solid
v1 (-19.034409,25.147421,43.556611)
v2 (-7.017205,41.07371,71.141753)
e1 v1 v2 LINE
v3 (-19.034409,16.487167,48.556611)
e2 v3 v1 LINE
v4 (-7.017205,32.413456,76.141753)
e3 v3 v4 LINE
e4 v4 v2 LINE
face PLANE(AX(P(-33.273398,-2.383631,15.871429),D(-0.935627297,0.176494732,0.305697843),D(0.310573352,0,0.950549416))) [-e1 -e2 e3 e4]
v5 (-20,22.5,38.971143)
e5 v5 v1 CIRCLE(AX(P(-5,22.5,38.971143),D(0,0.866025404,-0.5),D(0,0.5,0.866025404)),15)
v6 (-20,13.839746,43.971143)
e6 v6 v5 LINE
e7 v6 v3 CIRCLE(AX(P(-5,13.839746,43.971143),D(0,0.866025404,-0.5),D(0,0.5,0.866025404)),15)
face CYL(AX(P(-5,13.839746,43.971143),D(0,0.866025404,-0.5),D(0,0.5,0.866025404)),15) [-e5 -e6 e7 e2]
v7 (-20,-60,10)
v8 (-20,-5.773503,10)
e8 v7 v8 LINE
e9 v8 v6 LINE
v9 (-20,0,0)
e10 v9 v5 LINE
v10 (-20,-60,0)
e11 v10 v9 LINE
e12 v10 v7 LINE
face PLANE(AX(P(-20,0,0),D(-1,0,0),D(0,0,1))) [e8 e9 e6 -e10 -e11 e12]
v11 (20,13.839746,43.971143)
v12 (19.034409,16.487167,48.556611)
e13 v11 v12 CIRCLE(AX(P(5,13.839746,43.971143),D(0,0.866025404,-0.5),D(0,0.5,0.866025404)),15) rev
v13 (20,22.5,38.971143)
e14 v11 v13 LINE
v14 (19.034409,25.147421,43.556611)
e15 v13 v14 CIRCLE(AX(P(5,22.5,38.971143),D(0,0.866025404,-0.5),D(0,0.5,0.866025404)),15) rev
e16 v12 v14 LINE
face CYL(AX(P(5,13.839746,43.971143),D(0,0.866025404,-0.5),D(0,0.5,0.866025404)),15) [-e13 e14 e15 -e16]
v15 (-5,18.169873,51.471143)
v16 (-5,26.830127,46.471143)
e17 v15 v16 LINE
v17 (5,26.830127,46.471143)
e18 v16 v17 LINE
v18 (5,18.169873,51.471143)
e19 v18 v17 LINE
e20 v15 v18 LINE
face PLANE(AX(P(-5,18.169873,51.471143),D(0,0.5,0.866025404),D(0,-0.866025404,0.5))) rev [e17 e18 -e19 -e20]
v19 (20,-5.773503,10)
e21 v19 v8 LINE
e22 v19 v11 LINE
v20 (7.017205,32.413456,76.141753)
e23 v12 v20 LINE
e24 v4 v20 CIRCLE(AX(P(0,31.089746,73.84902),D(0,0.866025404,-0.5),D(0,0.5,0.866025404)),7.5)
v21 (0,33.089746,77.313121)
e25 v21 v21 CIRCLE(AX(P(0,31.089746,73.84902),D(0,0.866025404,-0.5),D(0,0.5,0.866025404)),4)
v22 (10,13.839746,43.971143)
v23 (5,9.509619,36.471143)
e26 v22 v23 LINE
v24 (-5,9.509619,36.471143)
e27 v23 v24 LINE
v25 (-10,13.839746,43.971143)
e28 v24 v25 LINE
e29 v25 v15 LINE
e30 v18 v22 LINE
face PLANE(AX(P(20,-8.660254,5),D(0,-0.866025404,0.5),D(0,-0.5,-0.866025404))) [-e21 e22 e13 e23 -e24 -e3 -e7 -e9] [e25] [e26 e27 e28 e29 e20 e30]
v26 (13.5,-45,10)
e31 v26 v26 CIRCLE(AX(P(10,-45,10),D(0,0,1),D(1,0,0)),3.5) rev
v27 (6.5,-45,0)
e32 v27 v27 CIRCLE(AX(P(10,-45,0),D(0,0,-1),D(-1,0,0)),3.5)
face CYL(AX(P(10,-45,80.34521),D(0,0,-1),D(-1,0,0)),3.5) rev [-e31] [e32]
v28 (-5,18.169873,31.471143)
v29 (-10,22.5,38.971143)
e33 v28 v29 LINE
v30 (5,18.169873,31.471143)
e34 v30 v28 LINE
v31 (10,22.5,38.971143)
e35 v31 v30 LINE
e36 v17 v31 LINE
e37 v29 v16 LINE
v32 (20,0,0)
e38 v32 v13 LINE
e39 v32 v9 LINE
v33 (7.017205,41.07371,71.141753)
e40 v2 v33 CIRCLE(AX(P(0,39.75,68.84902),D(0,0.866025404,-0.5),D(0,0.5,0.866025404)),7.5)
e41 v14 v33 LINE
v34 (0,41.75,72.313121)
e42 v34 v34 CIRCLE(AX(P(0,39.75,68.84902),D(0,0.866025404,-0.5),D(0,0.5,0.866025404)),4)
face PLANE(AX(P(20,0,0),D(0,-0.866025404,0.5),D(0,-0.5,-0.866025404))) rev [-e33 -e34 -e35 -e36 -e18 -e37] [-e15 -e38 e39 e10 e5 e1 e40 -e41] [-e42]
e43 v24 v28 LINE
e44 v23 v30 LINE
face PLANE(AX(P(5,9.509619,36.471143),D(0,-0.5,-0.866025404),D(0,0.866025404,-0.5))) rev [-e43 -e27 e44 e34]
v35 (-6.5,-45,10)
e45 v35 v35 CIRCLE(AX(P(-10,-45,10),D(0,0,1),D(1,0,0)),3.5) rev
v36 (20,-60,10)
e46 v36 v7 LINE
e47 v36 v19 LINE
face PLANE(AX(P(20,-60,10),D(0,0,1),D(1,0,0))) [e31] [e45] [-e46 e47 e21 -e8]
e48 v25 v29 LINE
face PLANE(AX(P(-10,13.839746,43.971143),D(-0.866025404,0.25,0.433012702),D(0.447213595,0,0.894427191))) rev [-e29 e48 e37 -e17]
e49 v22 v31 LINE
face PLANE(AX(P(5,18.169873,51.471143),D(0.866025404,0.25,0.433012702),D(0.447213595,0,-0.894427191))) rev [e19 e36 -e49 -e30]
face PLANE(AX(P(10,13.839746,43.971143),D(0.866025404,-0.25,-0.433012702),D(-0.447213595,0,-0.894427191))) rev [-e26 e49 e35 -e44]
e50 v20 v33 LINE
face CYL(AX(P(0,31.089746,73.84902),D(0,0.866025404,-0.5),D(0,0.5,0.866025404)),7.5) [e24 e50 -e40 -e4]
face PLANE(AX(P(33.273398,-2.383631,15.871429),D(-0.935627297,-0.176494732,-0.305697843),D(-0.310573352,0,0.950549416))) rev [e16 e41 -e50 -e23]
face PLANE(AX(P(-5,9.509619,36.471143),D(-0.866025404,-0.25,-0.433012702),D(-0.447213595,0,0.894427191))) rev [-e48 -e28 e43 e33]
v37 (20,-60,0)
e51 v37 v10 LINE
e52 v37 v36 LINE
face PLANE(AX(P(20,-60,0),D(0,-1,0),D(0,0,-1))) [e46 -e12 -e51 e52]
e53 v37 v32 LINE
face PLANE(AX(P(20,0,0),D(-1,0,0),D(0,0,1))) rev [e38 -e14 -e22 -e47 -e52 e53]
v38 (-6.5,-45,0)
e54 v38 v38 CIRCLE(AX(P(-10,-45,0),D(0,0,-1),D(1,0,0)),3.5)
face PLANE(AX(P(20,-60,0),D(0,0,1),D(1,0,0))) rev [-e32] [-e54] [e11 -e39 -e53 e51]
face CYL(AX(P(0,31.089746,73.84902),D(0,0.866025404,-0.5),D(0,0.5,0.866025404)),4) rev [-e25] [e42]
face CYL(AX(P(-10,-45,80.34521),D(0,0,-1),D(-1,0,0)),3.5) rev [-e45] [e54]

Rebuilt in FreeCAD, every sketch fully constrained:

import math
import FreeCAD as App
import Part
import Sketcher

V = App.Vector
Q = App.Units.Quantity


def add_polygon(sketch, points):
    """Adds a closed chain of lines whose ends are joined by coincident constraints."""
    first, n = sketch.GeometryCount, len(points)
    for a, b in zip(points, points[1:] + points[:1]):
        sketch.addGeometry(Part.LineSegment(App.Vector(*a, 0), App.Vector(*b, 0)), False)
    for i in range(n):
        sketch.addConstraint(Sketcher.Constraint("Coincident", first + i, 2, first + (i + 1) % n, 1))

doc = App.newDocument("Part")
body = doc.addObject("PartDesign::Body", "Body")

# Sketch on YZ plane
sketch1 = body.newObject("Sketcher::SketchObject", "Sketch")
sketch1.AttachmentSupport = (doc.getObject("YZ_Plane"), [""])
sketch1.MapMode = "FlatFace"
add_polygon(sketch1, [(-60, 0), (0, 0), (44, 75), (35, 80), (-6, 10), (-60, 10)])  # lines 0-5
sketch1.addConstraint([
    Sketcher.Constraint("Horizontal", 0),
    Sketcher.Constraint("Horizontal", 4),
    Sketcher.Constraint("Vertical", 5),
    Sketcher.Constraint("Coincident", 0, 2, -1, 1),
    Sketcher.Constraint("Perpendicular", 1, 2),
    Sketcher.Constraint("Perpendicular", 2, 3),
    Sketcher.Constraint("DistanceX", 0, 1, 0, 2, Q("60 mm")),
    Sketcher.Constraint("DistanceY", 5, 2, 5, 1, Q("10 mm")),
    Sketcher.Constraint("Angle", 1, Q("60 deg")),
    Sketcher.Constraint("Distance", 1, Q("87 mm")),
    Sketcher.Constraint("Distance", 2, Q("10 mm")),
])
pad1 = body.newObject("PartDesign::Pad", "Pad")
pad1.Profile = sketch1
pad1.Length = 40
pad1.Midplane = True

# Sketch on XY plane
sketch2 = body.newObject("Sketcher::SketchObject", "Sketch001")
sketch2.AttachmentSupport = (doc.getObject("XY_Plane"), [""])
sketch2.MapMode = "FlatFace"
sketch2.addGeometry(Part.Circle(V(10, -45, 0), V(0, 0, 1), 3.5), False)
sketch2.addConstraint([
    Sketcher.Constraint("Diameter", 0, Q("7 mm")),
    Sketcher.Constraint("DistanceX", -1, 1, 0, 3, Q("10 mm")),
    Sketcher.Constraint("DistanceY", 0, 3, -1, 1, Q("45 mm")),
])
pocket1 = body.newObject("PartDesign::Pocket", "Pocket")
pocket1.Profile = sketch2
pocket1.Type = "UpToFirst"
pocket1.Reversed = True

# Sketch on XY plane
sketch3 = body.newObject("Sketcher::SketchObject", "Sketch002")
sketch3.AttachmentSupport = (doc.getObject("XY_Plane"), [""])
sketch3.MapMode = "FlatFace"
sketch3.addGeometry(Part.Circle(V(-10, -45, 0), V(0, 0, 1), 3.5), False)
sketch3.addConstraint([
    Sketcher.Constraint("Diameter", 0, Q("7 mm")),
    Sketcher.Constraint("DistanceX", 0, 3, -1, 1, Q("10 mm")),
    Sketcher.Constraint("DistanceY", 0, 3, -1, 1, Q("45 mm")),
])
pocket2 = body.newObject("PartDesign::Pocket", "Pocket001")
pocket2.Profile = sketch3
pocket2.Type = "UpToFirst"
pocket2.Reversed = True

# Sketch on an angled plane
sketch4 = body.newObject("Sketcher::SketchObject", "Sketch003")
sketch4.Placement = App.Placement(V(0, 0, 0), App.Rotation(V(1, 0, 0), V(0, -0.5, -0.866025404), V(0, 0.866025404, -0.5), "ZXY"))
sketch4.addGeometry([
    Part.LineSegment(V(30, -45, 0), V(20, -45, 0)),  # 0
    Part.ArcOfCircle(Part.Circle(V(5, -45, 0), V(0, 0, 1), 15), math.radians(-21), math.radians(0)),  # 1
    Part.LineSegment(V(19, -50, 0), V(7, -82, 0)),  # 2
    Part.ArcOfCircle(Part.Circle(V(0, -80, 0), V(0, 0, 1), 8), math.radians(-90), math.radians(-21)),  # 3
    Part.ArcOfCircle(Part.Circle(V(0, -80, 0), V(0, 0, 1), 8), math.radians(-159), math.radians(-90)),  # 4
    Part.LineSegment(V(-7, -82, 0), V(-19, -50, 0)),  # 5
    Part.ArcOfCircle(Part.Circle(V(-5, -45, 0), V(0, 0, 1), 15), math.radians(180), math.radians(201)),  # 6
    Part.LineSegment(V(-20, -45, 0), V(-32, -45, 0)),  # 7
    Part.LineSegment(V(-32, -45, 0), V(-32, -101, 0)),  # 8
    Part.LineSegment(V(-32, -101, 0), V(30, -101, 0)),  # 9
    Part.LineSegment(V(30, -101, 0), V(30, -45, 0)),  # 10
], False)
sketch4.addConstraint([
    Sketcher.Constraint("Coincident", 0, 2, 1, 2),
    Sketcher.Constraint("Tangent", 1, 1, 2, 1),
    Sketcher.Constraint("Tangent", 2, 2, 3, 2),
    Sketcher.Constraint("Tangent", 3, 1, 4, 2),
    Sketcher.Constraint("Tangent", 4, 1, 5, 1),
    Sketcher.Constraint("Tangent", 5, 2, 6, 2),
    Sketcher.Constraint("Coincident", 6, 1, 7, 1),
    Sketcher.Constraint("Coincident", 7, 2, 8, 1),
    Sketcher.Constraint("Coincident", 8, 2, 9, 1),
    Sketcher.Constraint("Coincident", 9, 2, 10, 1),
    Sketcher.Constraint("Coincident", 10, 2, 0, 1),
    Sketcher.Constraint("Horizontal", 0),
    Sketcher.Constraint("Horizontal", 7),
    Sketcher.Constraint("Vertical", 8),
    Sketcher.Constraint("Horizontal", 9),
    Sketcher.Constraint("Vertical", 10),
    Sketcher.Constraint("Equal", 3, 4),
    Sketcher.Constraint("Equal", 1, 6),
    Sketcher.Constraint("Symmetric", 1, 3, 6, 3, -2),
    Sketcher.Constraint("PointOnObject", 3, 3, -2),
    Sketcher.Constraint("PointOnObject", 3, 1, -2),
    Sketcher.Constraint("Horizontal", 6, 3, 0, 2),
    Sketcher.Constraint("Horizontal", 0, 2, 6, 1),
    Sketcher.Constraint("Radius", 1, Q("15 mm")),
    Sketcher.Constraint("Radius", 3, Q("7.5 mm")),
    Sketcher.Constraint("DistanceX", -1, 1, 1, 3, Q("5 mm")),
    Sketcher.Constraint("DistanceY", 1, 3, -1, 1, Q("45 mm")),
    Sketcher.Constraint("DistanceY", 3, 1, -1, 1, Q("87 mm")),
    Sketcher.Constraint("DistanceX", 7, 2, 5, 2, Q("12.999999 mm")),
    Sketcher.Constraint("DistanceX", 0, 2, 0, 1, Q("9.732275 mm")),
    Sketcher.Constraint("DistanceY", 8, 2, 8, 1, Q("55.781823 mm")),
])
pocket3 = body.newObject("PartDesign::Pocket", "Pocket002")
pocket3.Profile = sketch4
pocket3.Length = 10

# Sketch on an angled plane
sketch5 = body.newObject("Sketcher::SketchObject", "Sketch004")
sketch5.Placement = App.Placement(V(0, 0, 0), App.Rotation(V(1, 0, 0), V(0, -0.5, -0.866025404), V(0, 0.866025404, -0.5), "ZXY"))
sketch5.addGeometry(Part.Circle(V(0, -79.5, 0), V(0, 0, 1), 4), False)  # 0
add_polygon(sketch5, [(10, -45), (5, -36.3), (-5, -36.3), (-10, -45), (-5, -53.7), (5, -53.7)])  # lines 1-6
sketch5.addConstraint([
    Sketcher.Constraint("Horizontal", 2),
    Sketcher.Constraint("Horizontal", 5),
    Sketcher.Constraint("Symmetric", 3, 2, 6, 2, -2),
    Sketcher.Constraint("PointOnObject", 0, 3, -2),
    Sketcher.Constraint("Parallel", 1, 4),
    Sketcher.Constraint("Parallel", 3, 6),
    Sketcher.Constraint("Vertical", 2, 2, 4, 2),
    Sketcher.Constraint("Vertical", 1, 2, 5, 2),
    Sketcher.Constraint("Diameter", 0, Q("8 mm")),
    Sketcher.Constraint("DistanceX", 2, 2, 2, 1, Q("10 mm")),
    Sketcher.Constraint("Angle", 1, Q("120 deg")),
    Sketcher.Constraint("Distance", 1, Q("10 mm")),
    Sketcher.Constraint("DistanceY", 3, 2, -1, 1, Q("45 mm")),
    Sketcher.Constraint("DistanceY", 0, 3, -1, 1, Q("79.5 mm")),
])
pocket4 = body.newObject("PartDesign::Pocket", "Pocket003")
pocket4.Profile = sketch5
pocket4.Length = 10

doc.recompute()
